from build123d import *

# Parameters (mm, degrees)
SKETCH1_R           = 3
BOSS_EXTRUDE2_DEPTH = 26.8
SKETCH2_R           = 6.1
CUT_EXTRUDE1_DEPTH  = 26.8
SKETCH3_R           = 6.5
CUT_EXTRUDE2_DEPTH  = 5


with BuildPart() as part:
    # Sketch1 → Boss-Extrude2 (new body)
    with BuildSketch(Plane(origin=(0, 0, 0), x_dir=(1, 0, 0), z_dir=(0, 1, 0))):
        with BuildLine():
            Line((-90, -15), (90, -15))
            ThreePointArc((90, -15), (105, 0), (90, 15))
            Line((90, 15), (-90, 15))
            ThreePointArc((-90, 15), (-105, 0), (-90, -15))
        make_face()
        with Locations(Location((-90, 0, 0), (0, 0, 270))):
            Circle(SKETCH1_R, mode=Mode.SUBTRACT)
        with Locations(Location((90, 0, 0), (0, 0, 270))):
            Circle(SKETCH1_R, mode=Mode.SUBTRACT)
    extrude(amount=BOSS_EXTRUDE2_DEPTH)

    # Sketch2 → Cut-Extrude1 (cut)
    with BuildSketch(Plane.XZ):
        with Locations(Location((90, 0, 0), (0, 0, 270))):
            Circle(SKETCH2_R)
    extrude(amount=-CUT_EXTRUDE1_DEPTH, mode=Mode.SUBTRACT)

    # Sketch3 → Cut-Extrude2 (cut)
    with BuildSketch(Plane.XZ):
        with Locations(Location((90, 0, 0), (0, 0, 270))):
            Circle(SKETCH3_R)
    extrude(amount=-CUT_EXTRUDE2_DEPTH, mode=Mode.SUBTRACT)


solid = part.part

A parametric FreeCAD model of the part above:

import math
import FreeCAD as App
import Part
import Sketcher
from FreeCAD import Vector
Q = App.Units.Quantity

doc = App.newDocument("Part")
params = doc.addObject("Spreadsheet::Sheet", "Params")
for row, (alias, value) in enumerate([
    ("sketch1_diameter", "6 mm"),
    ("sketch1_radius", "15 mm"),
    ("sketch1_width", "180 mm"),
    ("pad1_length", "26.8 mm"),
    ("sketch2_diameter", "12.2 mm"),
    ("pocket1_length", "26.8 mm"),
    ("sketch3_diameter", "13 mm"),
    ("pocket2_length", "5 mm"),
], start=1):
    params.set(f"A{row}", alias)
    params.set(f"B{row}", "=" + value)
    params.setAlias(f"B{row}", alias)

body = doc.addObject("PartDesign::Body", "Body")

# Sketch on XZ plane
sketch1 = body.newObject("Sketcher::SketchObject", "Sketch")
sketch1.AttachmentSupport = (doc.getObject("XZ_Plane"), [""])
sketch1.MapMode = "FlatFace"
sketch1.addGeometry([
    Part.LineSegment(Vector(-90, 15, 0), Vector(90, 15, 0)),  # 0
    Part.ArcOfCircle(Part.Circle(Vector(90, 0, 0), Vector(0, 0, 1), 15), math.radians(-90), math.radians(90)),  # 1
    Part.LineSegment(Vector(90, -15, 0), Vector(-90, -15, 0)),  # 2
    Part.ArcOfCircle(Part.Circle(Vector(-90, 0, 0), Vector(0, 0, 1), 15), math.radians(90), math.radians(270)),  # 3
    Part.Circle(Vector(-90, 0, 0), Vector(0, 0, 1), 3),  # 4
    Part.Circle(Vector(90, 0, 0), Vector(0, 0, 1), 3),  # 5
], False)
sketch1.addConstraint([
    Sketcher.Constraint("Tangent", 0, 2, 1, 2),
    Sketcher.Constraint("Tangent", 1, 1, 2, 1),
    Sketcher.Constraint("Tangent", 2, 2, 3, 2),
    Sketcher.Constraint("Tangent", 3, 1, 0, 1),
    Sketcher.Constraint("Horizontal", 0),
    Sketcher.Constraint("Horizontal", 2),
    Sketcher.Constraint("Coincident", 4, 3, 3, 3),
    Sketcher.Constraint("Coincident", 5, 3, 1, 3),
    Sketcher.Constraint("Equal", 4, 5),
    Sketcher.Constraint("Symmetric", 1, 3, 3, 3, -1, 1),
    Sketcher.Constraint("Diameter", 4, Q("6 mm")),
    Sketcher.Constraint("Radius", 1, Q("15 mm")),
    Sketcher.Constraint("DistanceX", 0, 1, 0, 2, Q("180 mm")),
])
sketch1.setExpression("Constraints[10]", "Params.sketch1_diameter")
sketch1.setExpression("Constraints[11]", "Params.sketch1_radius")
sketch1.setExpression("Constraints[12]", "Params.sketch1_width")
pad1 = body.newObject("PartDesign::Pad", "Pad")
pad1.Profile = sketch1
pad1.setExpression("Length", "Params.pad1_length")
pad1.Reversed = True

# Sketch on XZ plane
sketch2 = body.newObject("Sketcher::SketchObject", "Sketch001")
sketch2.AttachmentSupport = (doc.getObject("XZ_Plane"), [""])
sketch2.MapMode = "FlatFace"
sketch2.addGeometry(Part.Circle(Vector(90, 0, 0), Vector(0, 0, 1), 6), False)
sketch2.addConstraint([
    Sketcher.Constraint("PointOnObject", 0, 3, -1),
    Sketcher.Constraint("Diameter", 0, Q("12.2 mm")),
    Sketcher.Constraint("DistanceX", -1, 1, 0, 3, Q("90 mm")),
])
sketch2.setExpression("Constraints[1]", "Params.sketch2_diameter")
pocket1 = body.newObject("PartDesign::Pocket", "Pocket")
pocket1.Profile = sketch2
pocket1.setExpression("Length", "Params.pocket1_length")

# Sketch on XZ plane
sketch3 = body.newObject("Sketcher::SketchObject", "Sketch002")
sketch3.AttachmentSupport = (doc.getObject("XZ_Plane"), [""])
sketch3.MapMode = "FlatFace"
sketch3.addGeometry(Part.Circle(Vector(90, 0, 0), Vector(0, 0, 1), 6), False)
sketch3.addConstraint([
    Sketcher.Constraint("PointOnObject", 0, 3, -1),
    Sketcher.Constraint("Diameter", 0, Q("13 mm")),
    Sketcher.Constraint("DistanceX", -1, 1, 0, 3, Q("90 mm")),
])
sketch3.setExpression("Constraints[1]", "Params.sketch3_diameter")
pocket2 = body.newObject("PartDesign::Pocket", "Pocket001")
pocket2.Profile = sketch3
pocket2.setExpression("Length", "Params.pocket2_length")

doc.recompute()
